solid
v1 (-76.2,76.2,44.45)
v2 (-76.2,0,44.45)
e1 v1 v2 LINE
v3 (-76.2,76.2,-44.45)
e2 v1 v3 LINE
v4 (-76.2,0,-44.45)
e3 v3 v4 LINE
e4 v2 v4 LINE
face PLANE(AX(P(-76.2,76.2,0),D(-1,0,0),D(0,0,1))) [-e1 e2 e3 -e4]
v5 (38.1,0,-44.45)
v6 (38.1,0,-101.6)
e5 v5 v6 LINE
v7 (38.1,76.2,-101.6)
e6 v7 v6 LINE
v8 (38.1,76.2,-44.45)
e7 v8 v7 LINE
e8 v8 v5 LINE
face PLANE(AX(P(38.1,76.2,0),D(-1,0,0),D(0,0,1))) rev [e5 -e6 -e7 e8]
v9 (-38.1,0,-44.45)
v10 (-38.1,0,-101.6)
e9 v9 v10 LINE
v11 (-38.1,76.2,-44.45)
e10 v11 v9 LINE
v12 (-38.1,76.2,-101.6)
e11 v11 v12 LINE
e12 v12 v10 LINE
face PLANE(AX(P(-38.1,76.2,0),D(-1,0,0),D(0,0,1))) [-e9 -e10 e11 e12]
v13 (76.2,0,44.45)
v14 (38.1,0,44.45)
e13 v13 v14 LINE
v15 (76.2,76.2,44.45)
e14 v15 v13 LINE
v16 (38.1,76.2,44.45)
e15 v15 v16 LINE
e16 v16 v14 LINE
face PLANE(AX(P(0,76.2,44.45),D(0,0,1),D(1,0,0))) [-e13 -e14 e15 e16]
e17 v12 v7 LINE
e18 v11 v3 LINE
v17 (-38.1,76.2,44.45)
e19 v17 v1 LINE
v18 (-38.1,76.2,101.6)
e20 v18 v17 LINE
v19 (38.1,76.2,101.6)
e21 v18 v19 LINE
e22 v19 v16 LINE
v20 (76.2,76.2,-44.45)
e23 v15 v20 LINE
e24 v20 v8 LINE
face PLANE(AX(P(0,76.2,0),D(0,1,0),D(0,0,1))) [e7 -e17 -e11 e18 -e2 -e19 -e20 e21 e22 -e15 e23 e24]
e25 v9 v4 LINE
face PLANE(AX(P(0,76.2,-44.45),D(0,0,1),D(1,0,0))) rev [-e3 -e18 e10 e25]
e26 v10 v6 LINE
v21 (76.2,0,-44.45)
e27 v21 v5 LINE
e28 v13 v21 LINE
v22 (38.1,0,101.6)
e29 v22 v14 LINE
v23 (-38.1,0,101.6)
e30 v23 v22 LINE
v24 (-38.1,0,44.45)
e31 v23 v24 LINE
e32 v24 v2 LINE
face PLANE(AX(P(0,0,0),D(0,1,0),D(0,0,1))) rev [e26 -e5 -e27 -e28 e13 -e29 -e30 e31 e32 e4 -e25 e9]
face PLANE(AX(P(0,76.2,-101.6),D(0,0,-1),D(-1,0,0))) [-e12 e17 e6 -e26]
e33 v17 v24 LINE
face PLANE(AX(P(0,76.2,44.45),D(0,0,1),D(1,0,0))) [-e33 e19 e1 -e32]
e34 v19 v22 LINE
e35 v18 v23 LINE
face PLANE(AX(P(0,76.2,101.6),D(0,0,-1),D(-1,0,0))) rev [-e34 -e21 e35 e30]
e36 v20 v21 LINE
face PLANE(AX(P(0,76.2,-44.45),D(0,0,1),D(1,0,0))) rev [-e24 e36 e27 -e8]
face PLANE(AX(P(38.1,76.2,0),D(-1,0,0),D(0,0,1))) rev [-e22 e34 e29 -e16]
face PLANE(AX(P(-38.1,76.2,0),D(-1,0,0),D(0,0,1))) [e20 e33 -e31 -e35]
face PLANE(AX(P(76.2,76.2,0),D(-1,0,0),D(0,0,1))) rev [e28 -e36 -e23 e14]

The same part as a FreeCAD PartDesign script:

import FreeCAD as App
import Part
import Sketcher
Q = App.Units.Quantity

doc = App.newDocument("Part")
params = doc.addObject("Spreadsheet::Sheet", "Params")
for row, (alias, value) in enumerate([
    ("sketch1_width", "3 in"),
    ("sketch1_width2", "1.5 in"),
    ("sketch1_height", "3.5 in"),
    ("pad1_length", "3 in"),
], start=1):
    params.set(f"A{row}", alias)
    params.set(f"B{row}", "=" + value)
    params.setAlias(f"B{row}", alias)

body = doc.addObject("PartDesign::Body", "Body")

sketch1 = body.newObject("Sketcher::SketchObject", "Sketch")
sketch1.AttachmentSupport = (doc.getObject("XZ_Plane"), [""])
sketch1.MapMode = "FlatFace"
sketch1.addGeometry([
    Part.LineSegment(App.Vector(38, 44, 0), App.Vector(76, 44, 0)),
    Part.LineSegment(App.Vector(76, 44, 0), App.Vector(76, -44, 0)),
    Part.LineSegment(App.Vector(76, -44, 0), App.Vector(38, -44, 0)),
    Part.LineSegment(App.Vector(38, -44, 0), App.Vector(38, -102, 0)),
    Part.LineSegment(App.Vector(38, -102, 0), App.Vector(-38, -102, 0)),
    Part.LineSegment(App.Vector(-38, -102, 0), App.Vector(-38, -44, 0)),
    Part.LineSegment(App.Vector(-38, -44, 0), App.Vector(-76, -44, 0)),
    Part.LineSegment(App.Vector(-76, -44, 0), App.Vector(-76, 44, 0)),
    Part.LineSegment(App.Vector(-76, 44, 0), App.Vector(-38, 44, 0)),
    Part.LineSegment(App.Vector(-38, 44, 0), App.Vector(-38, 102, 0)),
    Part.LineSegment(App.Vector(-38, 102, 0), App.Vector(38, 102, 0)),
    Part.LineSegment(App.Vector(38, 102, 0), App.Vector(38, 44, 0)),
], False)
sketch1.addConstraint([
    Sketcher.Constraint("Coincident", 0, 2, 1, 1),
    Sketcher.Constraint("Coincident", 1, 2, 2, 1),
    Sketcher.Constraint("Coincident", 2, 2, 3, 1),
    Sketcher.Constraint("Coincident", 3, 2, 4, 1),
    Sketcher.Constraint("Coincident", 4, 2, 5, 1),
    Sketcher.Constraint("Coincident", 5, 2, 6, 1),
    Sketcher.Constraint("Coincident", 6, 2, 7, 1),
    Sketcher.Constraint("Coincident", 7, 2, 8, 1),
    Sketcher.Constraint("Coincident", 8, 2, 9, 1),
    Sketcher.Constraint("Coincident", 9, 2, 10, 1),
    Sketcher.Constraint("Coincident", 10, 2, 11, 1),
    Sketcher.Constraint("Coincident", 11, 2, 0, 1),
    Sketcher.Constraint("Horizontal", 0),
    Sketcher.Constraint("Vertical", 1),
    Sketcher.Constraint("Horizontal", 2),
    Sketcher.Constraint("Vertical", 3),
    Sketcher.Constraint("Horizontal", 4),
    Sketcher.Constraint("Vertical", 5),
    Sketcher.Constraint("Horizontal", 6),
    Sketcher.Constraint("Vertical", 7),
    Sketcher.Constraint("Horizontal", 8),
    Sketcher.Constraint("Vertical", 9),
    Sketcher.Constraint("Horizontal", 10),
    Sketcher.Constraint("Vertical", 11),
    Sketcher.Constraint("Symmetric", 0, 2, 6, 2, -1, 1),
    Sketcher.Constraint("Symmetric", 2, 2, 8, 2, -1, 1),
    Sketcher.Constraint("Symmetric", 4, 2, 10, 2, -1, 1),
    Sketcher.Constraint("Symmetric", 2, 2, 5, 2, -2),
    Sketcher.Constraint("DistanceX", 4, 2, 4, 1, Q("3 in")),
    Sketcher.Constraint("DistanceX", 0, 1, 0, 2, Q("1.5 in")),
    Sketcher.Constraint("DistanceY", 1, 2, 1, 1, Q("3.5 in")),
    Sketcher.Constraint("DistanceY", 3, 2, -1, 1, Q("4 in")),
])
sketch1.setExpression("Constraints[28]", "Params.sketch1_width")
sketch1.setExpression("Constraints[29]", "Params.sketch1_width2")
sketch1.setExpression("Constraints[30]", "Params.sketch1_height")
pad1 = body.newObject("PartDesign::Pad", "Pad")
pad1.Profile = sketch1
pad1.setExpression("Length", "Params.pad1_length")
pad1.Reversed = True

doc.recompute()
